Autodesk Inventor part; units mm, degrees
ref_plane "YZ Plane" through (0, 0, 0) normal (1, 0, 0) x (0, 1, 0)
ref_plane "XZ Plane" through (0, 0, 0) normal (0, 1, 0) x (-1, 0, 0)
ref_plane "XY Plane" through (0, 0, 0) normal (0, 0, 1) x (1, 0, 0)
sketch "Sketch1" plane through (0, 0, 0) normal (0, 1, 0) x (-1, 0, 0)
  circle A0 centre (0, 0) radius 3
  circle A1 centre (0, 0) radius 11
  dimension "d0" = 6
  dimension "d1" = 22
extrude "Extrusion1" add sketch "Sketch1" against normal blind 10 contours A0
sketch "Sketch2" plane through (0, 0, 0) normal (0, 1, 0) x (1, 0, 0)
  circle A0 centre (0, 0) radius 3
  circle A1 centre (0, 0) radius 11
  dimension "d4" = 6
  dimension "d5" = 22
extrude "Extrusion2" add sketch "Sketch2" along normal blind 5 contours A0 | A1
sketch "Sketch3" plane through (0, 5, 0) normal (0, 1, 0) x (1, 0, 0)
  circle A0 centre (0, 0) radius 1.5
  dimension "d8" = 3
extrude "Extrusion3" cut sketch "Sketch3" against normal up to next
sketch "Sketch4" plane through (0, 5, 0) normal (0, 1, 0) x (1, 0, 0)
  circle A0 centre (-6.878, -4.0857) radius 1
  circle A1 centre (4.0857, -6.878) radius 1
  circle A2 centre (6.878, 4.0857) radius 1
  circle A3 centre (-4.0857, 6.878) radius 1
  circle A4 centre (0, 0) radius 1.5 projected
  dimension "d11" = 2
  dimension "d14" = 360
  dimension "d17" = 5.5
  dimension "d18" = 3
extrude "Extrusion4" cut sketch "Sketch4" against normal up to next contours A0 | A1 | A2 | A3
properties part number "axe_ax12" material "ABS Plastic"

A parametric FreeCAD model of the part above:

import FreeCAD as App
import Part
import Sketcher

V = App.Vector
Q = App.Units.Quantity

doc = App.newDocument("Part")
body = doc.addObject("PartDesign::Body", "Body")

sketch1 = body.newObject("Sketcher::SketchObject", "Sketch")
sketch1.AttachmentSupport = (doc.getObject("XZ_Plane"), [""])
sketch1.MapMode = "FlatFace"
sketch1.addGeometry(Part.Circle(V(0, 0, 0), V(0, 0, 1), 3), False)
sketch1.addConstraint(Sketcher.Constraint("Coincident", 0, 3, -1, 1))
sketch1.addConstraint(Sketcher.Constraint("Diameter", 0, Q("6 mm")))
pad1 = body.newObject("PartDesign::Pad", "Pad")
pad1.Profile = sketch1
pad1.Length = 10

sketch2 = body.newObject("Sketcher::SketchObject", "Sketch001")
sketch2.AttachmentSupport = (doc.getObject("XZ_Plane"), [""])
sketch2.MapMode = "FlatFace"
sketch2.addGeometry(Part.Circle(V(0, 0, 0), V(0, 0, 1), 11), False)
sketch2.addConstraint(Sketcher.Constraint("Coincident", 0, 3, -1, 1))
sketch2.addConstraint(Sketcher.Constraint("Diameter", 0, Q("22 mm")))
pad2 = body.newObject("PartDesign::Pad", "Pad001")
pad2.Profile = sketch2
pad2.Length = 5
pad2.Reversed = True

sketch3 = body.newObject("Sketcher::SketchObject", "Sketch002")
sketch3.AttachmentSupport = (doc.getObject("XZ_Plane"), [""])
sketch3.MapMode = "FlatFace"
sketch3.AttachmentOffset = App.Placement(V(0, 0, -5), App.Rotation())
sketch3.addGeometry(Part.Circle(V(0, 0, 0), V(0, 0, 1), 1.5), False)
sketch3.addConstraint(Sketcher.Constraint("Coincident", 0, 3, -1, 1))
sketch3.addConstraint(Sketcher.Constraint("Diameter", 0, Q("3 mm")))
pocket1 = body.newObject("PartDesign::Pocket", "Pocket")
pocket1.Profile = sketch3
pocket1.Type = "UpToFirst"
pocket1.Reversed = True

sketch4 = body.newObject("Sketcher::SketchObject", "Sketch003")
sketch4.AttachmentSupport = (doc.getObject("XZ_Plane"), [""])
sketch4.MapMode = "FlatFace"
sketch4.AttachmentOffset = App.Placement(V(0, 0, -5), App.Rotation())
sketch4.addGeometry(Part.Circle(V(-6.9, 4.1, 0), V(0, 0, 1), 1), False)
sketch4.addGeometry(Part.Circle(V(4.1, 6.9, 0), V(0, 0, 1), 1), False)
sketch4.addGeometry(Part.Circle(V(6.9, -4.1, 0), V(0, 0, 1), 1), False)
sketch4.addGeometry(Part.Circle(V(-4.1, -6.9, 0), V(0, 0, 1), 1), False)
sketch4.addConstraint(Sketcher.Constraint("Equal", 0, 1))
sketch4.addConstraint(Sketcher.Constraint("Equal", 1, 2))
sketch4.addConstraint(Sketcher.Constraint("Equal", 2, 3))
sketch4.addConstraint(Sketcher.Constraint("Symmetric", 0, 3, 2, 3, -1, 1))
sketch4.addConstraint(Sketcher.Constraint("Symmetric", 1, 3, 3, 3, -1, 1))
sketch4.addConstraint(Sketcher.Constraint("Diameter", 0, Q("2 mm")))
sketch4.addConstraint(Sketcher.Constraint("DistanceX", 0, 3, -1, 1, Q("6.878 mm")))
sketch4.addConstraint(Sketcher.Constraint("DistanceY", -1, 1, 1, 3, Q("6.878 mm")))
sketch4.addConstraint(Sketcher.Constraint("DistanceY", -1, 1, 0, 3, Q("4.0857 mm")))
sketch4.addConstraint(Sketcher.Constraint("DistanceX", -1, 1, 1, 3, Q("4.0857 mm")))
pocket2 = body.newObject("PartDesign::Pocket", "Pocket001")
pocket2.Profile = sketch4
pocket2.Length = 5
pocket2.Reversed = True

doc.recompute()
